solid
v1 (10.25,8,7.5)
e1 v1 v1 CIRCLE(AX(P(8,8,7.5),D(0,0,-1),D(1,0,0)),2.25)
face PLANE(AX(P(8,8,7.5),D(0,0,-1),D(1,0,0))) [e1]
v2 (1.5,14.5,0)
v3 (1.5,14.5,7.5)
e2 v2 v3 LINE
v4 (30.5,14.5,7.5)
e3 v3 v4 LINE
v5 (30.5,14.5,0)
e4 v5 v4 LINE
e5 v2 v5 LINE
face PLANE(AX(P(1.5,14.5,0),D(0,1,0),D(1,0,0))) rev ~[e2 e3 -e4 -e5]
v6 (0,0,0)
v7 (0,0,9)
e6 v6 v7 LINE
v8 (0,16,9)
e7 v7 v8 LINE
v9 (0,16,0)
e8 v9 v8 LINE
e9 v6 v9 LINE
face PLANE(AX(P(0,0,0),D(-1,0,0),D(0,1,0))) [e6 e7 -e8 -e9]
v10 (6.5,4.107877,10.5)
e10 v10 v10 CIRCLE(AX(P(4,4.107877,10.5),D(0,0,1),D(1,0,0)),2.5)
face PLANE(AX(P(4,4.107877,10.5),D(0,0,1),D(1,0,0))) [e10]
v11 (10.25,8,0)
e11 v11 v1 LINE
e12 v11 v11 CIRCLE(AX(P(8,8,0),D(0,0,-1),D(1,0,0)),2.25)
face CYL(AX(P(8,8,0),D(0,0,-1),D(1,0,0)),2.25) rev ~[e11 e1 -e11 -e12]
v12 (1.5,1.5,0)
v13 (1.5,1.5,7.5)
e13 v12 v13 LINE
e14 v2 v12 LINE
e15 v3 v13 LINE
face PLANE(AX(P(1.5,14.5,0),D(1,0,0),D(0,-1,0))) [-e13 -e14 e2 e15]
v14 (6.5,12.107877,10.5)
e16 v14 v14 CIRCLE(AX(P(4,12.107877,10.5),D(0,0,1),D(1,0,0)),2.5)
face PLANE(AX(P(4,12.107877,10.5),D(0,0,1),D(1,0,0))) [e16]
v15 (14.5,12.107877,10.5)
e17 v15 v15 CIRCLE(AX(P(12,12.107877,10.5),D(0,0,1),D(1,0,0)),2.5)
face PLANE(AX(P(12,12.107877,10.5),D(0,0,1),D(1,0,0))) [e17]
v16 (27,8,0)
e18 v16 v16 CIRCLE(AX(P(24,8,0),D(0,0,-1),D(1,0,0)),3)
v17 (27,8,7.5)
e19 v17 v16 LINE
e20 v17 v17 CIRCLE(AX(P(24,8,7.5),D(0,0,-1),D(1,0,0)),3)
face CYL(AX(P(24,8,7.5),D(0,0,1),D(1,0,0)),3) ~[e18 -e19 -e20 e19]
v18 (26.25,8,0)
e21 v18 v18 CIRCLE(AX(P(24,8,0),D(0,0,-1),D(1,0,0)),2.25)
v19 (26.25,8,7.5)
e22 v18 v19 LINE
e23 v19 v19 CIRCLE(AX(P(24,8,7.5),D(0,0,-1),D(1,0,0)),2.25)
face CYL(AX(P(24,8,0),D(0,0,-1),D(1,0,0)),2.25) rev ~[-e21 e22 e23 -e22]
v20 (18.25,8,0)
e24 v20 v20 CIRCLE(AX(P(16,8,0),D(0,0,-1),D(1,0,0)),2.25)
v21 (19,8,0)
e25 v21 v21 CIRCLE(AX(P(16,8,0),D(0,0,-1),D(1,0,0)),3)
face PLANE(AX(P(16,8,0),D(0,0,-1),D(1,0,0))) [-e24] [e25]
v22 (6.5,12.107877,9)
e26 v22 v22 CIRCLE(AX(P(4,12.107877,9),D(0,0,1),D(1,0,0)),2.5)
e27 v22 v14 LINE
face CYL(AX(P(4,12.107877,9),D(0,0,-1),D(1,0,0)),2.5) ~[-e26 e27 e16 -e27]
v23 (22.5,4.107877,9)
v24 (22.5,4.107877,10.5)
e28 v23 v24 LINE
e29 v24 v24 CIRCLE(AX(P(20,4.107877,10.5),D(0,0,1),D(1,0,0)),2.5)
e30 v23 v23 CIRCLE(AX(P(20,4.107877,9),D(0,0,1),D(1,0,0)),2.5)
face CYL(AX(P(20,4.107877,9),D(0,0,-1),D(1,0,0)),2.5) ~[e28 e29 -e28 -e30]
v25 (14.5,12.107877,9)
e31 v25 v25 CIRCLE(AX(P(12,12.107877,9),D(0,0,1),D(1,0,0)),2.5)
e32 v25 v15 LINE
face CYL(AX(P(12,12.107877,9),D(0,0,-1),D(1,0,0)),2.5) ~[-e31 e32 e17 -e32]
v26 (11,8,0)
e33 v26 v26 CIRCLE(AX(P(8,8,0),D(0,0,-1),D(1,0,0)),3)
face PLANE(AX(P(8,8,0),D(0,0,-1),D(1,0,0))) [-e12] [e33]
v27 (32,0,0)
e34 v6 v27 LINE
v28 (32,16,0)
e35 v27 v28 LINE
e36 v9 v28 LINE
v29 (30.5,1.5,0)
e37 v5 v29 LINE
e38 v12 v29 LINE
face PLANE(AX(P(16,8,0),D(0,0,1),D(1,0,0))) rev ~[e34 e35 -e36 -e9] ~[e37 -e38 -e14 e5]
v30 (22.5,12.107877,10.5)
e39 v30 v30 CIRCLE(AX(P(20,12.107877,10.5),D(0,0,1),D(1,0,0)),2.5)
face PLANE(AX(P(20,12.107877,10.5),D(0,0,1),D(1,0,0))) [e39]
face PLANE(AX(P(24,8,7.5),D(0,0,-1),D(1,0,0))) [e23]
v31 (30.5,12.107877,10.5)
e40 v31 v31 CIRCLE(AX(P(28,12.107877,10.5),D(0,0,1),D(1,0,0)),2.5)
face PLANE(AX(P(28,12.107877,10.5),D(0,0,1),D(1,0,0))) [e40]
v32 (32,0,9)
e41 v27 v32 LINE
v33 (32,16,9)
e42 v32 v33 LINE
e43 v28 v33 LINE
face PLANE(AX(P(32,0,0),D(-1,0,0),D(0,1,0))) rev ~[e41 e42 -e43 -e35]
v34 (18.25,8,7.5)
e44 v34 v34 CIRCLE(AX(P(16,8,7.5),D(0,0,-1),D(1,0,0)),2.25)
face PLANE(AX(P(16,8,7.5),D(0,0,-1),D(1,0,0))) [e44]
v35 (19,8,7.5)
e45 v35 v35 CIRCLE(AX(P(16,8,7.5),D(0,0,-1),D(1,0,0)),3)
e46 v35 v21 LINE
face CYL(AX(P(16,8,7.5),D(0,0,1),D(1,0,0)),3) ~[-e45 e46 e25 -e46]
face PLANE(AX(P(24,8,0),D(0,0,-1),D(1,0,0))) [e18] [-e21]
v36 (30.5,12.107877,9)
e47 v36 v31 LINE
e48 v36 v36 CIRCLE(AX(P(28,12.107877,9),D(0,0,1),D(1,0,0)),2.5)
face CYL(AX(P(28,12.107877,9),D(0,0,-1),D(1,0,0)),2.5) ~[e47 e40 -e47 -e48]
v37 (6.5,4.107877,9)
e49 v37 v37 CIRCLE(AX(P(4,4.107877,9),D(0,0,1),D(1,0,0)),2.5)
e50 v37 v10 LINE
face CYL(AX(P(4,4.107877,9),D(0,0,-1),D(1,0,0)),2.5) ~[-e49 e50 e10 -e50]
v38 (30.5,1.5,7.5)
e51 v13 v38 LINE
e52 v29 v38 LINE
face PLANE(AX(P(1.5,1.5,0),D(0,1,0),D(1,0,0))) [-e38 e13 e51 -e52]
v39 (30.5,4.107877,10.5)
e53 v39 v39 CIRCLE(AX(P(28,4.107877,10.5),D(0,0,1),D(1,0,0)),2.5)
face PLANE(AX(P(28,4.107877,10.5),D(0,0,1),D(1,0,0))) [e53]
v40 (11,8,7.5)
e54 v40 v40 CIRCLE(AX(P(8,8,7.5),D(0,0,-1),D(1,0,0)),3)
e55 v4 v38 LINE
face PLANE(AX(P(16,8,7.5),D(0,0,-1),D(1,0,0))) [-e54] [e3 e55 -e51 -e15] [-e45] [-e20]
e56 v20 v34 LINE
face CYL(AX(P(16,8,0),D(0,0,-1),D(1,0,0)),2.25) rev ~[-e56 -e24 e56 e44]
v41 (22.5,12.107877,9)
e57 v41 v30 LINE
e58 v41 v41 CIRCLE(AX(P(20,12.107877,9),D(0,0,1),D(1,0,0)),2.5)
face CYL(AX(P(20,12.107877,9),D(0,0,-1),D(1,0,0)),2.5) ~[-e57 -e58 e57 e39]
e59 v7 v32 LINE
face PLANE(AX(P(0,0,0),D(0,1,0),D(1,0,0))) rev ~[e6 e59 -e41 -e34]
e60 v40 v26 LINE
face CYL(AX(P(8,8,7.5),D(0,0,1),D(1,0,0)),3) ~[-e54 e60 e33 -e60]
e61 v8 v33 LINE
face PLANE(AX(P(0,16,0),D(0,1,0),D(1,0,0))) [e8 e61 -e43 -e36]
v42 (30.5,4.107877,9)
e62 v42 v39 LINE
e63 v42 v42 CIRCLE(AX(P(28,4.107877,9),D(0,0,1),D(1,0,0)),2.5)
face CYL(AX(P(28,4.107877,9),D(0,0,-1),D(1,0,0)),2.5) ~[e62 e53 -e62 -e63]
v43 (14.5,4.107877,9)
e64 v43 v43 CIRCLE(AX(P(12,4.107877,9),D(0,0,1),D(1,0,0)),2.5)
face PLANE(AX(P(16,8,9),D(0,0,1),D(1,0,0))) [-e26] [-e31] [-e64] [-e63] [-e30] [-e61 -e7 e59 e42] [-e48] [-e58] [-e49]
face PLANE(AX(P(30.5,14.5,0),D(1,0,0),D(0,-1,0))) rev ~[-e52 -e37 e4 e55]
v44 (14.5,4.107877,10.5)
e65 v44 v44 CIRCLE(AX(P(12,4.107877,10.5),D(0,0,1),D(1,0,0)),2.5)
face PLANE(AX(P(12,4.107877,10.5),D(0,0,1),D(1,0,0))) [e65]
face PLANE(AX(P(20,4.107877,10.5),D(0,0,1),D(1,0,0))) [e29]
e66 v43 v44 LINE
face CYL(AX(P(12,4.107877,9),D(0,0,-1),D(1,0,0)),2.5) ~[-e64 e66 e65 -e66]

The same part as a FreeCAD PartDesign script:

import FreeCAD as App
import Part
import Sketcher

V = App.Vector


def add_polygon(sketch, points):
    """Adds a closed chain of lines whose ends are joined by coincident constraints."""
    first, n = sketch.GeometryCount, len(points)
    for a, b in zip(points, points[1:] + points[:1]):
        sketch.addGeometry(Part.LineSegment(App.Vector(*a, 0), App.Vector(*b, 0)), False)
    for i in range(n):
        sketch.addConstraint(Sketcher.Constraint("Coincident", first + i, 2, first + (i + 1) % n, 1))

doc = App.newDocument("Part")
body = doc.addObject("PartDesign::Body", "Body")

# Sketch on XY plane
sketch1 = body.newObject("Sketcher::SketchObject", "Sketch")
sketch1.AttachmentSupport = (doc.getObject("XY_Plane"), [""])
sketch1.MapMode = "FlatFace"
add_polygon(sketch1, [(0, 16), (0, 0), (32, 0), (32, 16)])  # lines 0-3
sketch1.addConstraint(Sketcher.Constraint("Vertical", 0))
sketch1.addConstraint(Sketcher.Constraint("Horizontal", 1))
sketch1.addConstraint(Sketcher.Constraint("Vertical", 2))
sketch1.addConstraint(Sketcher.Constraint("Horizontal", 3))
sketch1.addConstraint(Sketcher.Constraint("Coincident", 0, 2, -1, 1))
sketch1.addConstraint(Sketcher.Constraint("DistanceX", 1, 1, 1, 2, 32.0))
sketch1.addConstraint(Sketcher.Constraint("DistanceY", 0, 2, 0, 1, 16.0))
pad1 = body.newObject("PartDesign::Pad", "Pad")
pad1.Profile = sketch1
pad1.Length = 9

# Sketch on XY plane
sketch2 = body.newObject("Sketcher::SketchObject", "Sketch001")
sketch2.AttachmentSupport = (doc.getObject("XY_Plane"), [""])
sketch2.MapMode = "FlatFace"
sketch2.AttachmentOffset = App.Placement(V(0, 0, 9), App.Rotation())
sketch2.addGeometry(Part.Circle(V(4, 4.107877, 0), V(0, 0, 1), 2.5), False)
sketch2.addGeometry(Part.Circle(V(4, 12.107877, 0), V(0, 0, 1), 2.5), False)
sketch2.addGeometry(Part.Circle(V(12, 12.107877, 0), V(0, 0, 1), 2.5), False)
sketch2.addGeometry(Part.Circle(V(12, 4.107877, 0), V(0, 0, 1), 2.5), False)
sketch2.addGeometry(Part.Circle(V(20, 12.107877, 0), V(0, 0, 1), 2.5), False)
sketch2.addGeometry(Part.Circle(V(20, 4.107877, 0), V(0, 0, 1), 2.5), False)
sketch2.addGeometry(Part.Circle(V(28, 4.107877, 0), V(0, 0, 1), 2.5), False)
sketch2.addGeometry(Part.Circle(V(28, 12.107877, 0), V(0, 0, 1), 2.5), False)
sketch2.addConstraint(Sketcher.Constraint("Equal", 0, 1))
sketch2.addConstraint(Sketcher.Constraint("Equal", 1, 2))
sketch2.addConstraint(Sketcher.Constraint("Equal", 2, 3))
sketch2.addConstraint(Sketcher.Constraint("Equal", 3, 4))
sketch2.addConstraint(Sketcher.Constraint("Equal", 4, 5))
sketch2.addConstraint(Sketcher.Constraint("Equal", 5, 6))
sketch2.addConstraint(Sketcher.Constraint("Equal", 6, 7))
sketch2.addConstraint(Sketcher.Constraint("Horizontal", 1, 3, 2, 3))
sketch2.addConstraint(Sketcher.Constraint("Horizontal", 0, 3, 3, 3))
sketch2.addConstraint(Sketcher.Constraint("Horizontal", 2, 3, 4, 3))
sketch2.addConstraint(Sketcher.Constraint("Horizontal", 3, 3, 5, 3))
sketch2.addConstraint(Sketcher.Constraint("Horizontal", 5, 3, 6, 3))
sketch2.addConstraint(Sketcher.Constraint("Horizontal", 4, 3, 7, 3))
sketch2.addConstraint(Sketcher.Constraint("Vertical", 0, 3, 1, 3))
sketch2.addConstraint(Sketcher.Constraint("Vertical", 2, 3, 3, 3))
sketch2.addConstraint(Sketcher.Constraint("Vertical", 4, 3, 5, 3))
sketch2.addConstraint(Sketcher.Constraint("Vertical", 6, 3, 7, 3))
sketch2.addConstraint(Sketcher.Constraint("Diameter", 0, 5.0))
sketch2.addConstraint(Sketcher.Constraint("DistanceX", -1, 1, 0, 3, 4.0))
sketch2.addConstraint(Sketcher.Constraint("DistanceX", -1, 1, 2, 3, 12.0))
sketch2.addConstraint(Sketcher.Constraint("DistanceX", -1, 1, 4, 3, 20.0))
sketch2.addConstraint(Sketcher.Constraint("DistanceX", -1, 1, 6, 3, 28.0))
sketch2.addConstraint(Sketcher.Constraint("DistanceY", 0, 3, 1, 3, 8.0))
sketch2.addConstraint(Sketcher.Constraint("DistanceY", -1, 1, 0, 3, 4.107877))
pad2 = body.newObject("PartDesign::Pad", "Pad001")
pad2.Profile = sketch2
pad2.Length = 1.5

# Sketch on XY plane
sketch3 = body.newObject("Sketcher::SketchObject", "Sketch002")
sketch3.AttachmentSupport = (doc.getObject("XY_Plane"), [""])
sketch3.MapMode = "FlatFace"
add_polygon(sketch3, [(1.5, 1.5), (1.5, 14.5), (30.5, 14.5), (30.5, 1.5)])  # lines 0-3
sketch3.addConstraint(Sketcher.Constraint("Vertical", 0))
sketch3.addConstraint(Sketcher.Constraint("Horizontal", 1))
sketch3.addConstraint(Sketcher.Constraint("Vertical", 2))
sketch3.addConstraint(Sketcher.Constraint("Horizontal", 3))
sketch3.addConstraint(Sketcher.Constraint("DistanceX", 1, 1, 1, 2, 29.0))
sketch3.addConstraint(Sketcher.Constraint("DistanceY", 0, 1, 0, 2, 13.0))
sketch3.addConstraint(Sketcher.Constraint("DistanceX", -1, 1, 0, 2, 1.5))
sketch3.addConstraint(Sketcher.Constraint("DistanceY", -1, 1, 0, 2, 14.5))
pocket1 = body.newObject("PartDesign::Pocket", "Pocket")
pocket1.Profile = sketch3
pocket1.Length = 7.5
pocket1.Reversed = True

# Sketch on XY plane
sketch4 = body.newObject("Sketcher::SketchObject", "Sketch003")
sketch4.AttachmentSupport = (doc.getObject("XY_Plane"), [""])
sketch4.MapMode = "FlatFace"
sketch4.AttachmentOffset = App.Placement(V(0, 0, 7.5), App.Rotation())
sketch4.addGeometry(Part.Circle(V(8, 8, 0), V(0, 0, 1), 3), False)
sketch4.addGeometry(Part.Circle(V(16, 8, 0), V(0, 0, 1), 3), False)
sketch4.addGeometry(Part.Circle(V(24, 8, 0), V(0, 0, 1), 3), False)
sketch4.addConstraint(Sketcher.Constraint("Equal", 0, 1))
sketch4.addConstraint(Sketcher.Constraint("Equal", 1, 2))
sketch4.addConstraint(Sketcher.Constraint("Horizontal", 0, 3, 1, 3))
sketch4.addConstraint(Sketcher.Constraint("Horizontal", 1, 3, 2, 3))
sketch4.addConstraint(Sketcher.Constraint("Diameter", 0, 6.0))
sketch4.addConstraint(Sketcher.Constraint("DistanceX", -1, 1, 0, 3, 8.0))
sketch4.addConstraint(Sketcher.Constraint("DistanceY", -1, 1, 0, 3, 8.0))
sketch4.addConstraint(Sketcher.Constraint("DistanceX", -1, 1, 1, 3, 16.0))
sketch4.addConstraint(Sketcher.Constraint("DistanceX", -1, 1, 2, 3, 24.0))
pad3 = body.newObject("PartDesign::Pad", "Pad002")
pad3.Profile = sketch4
pad3.Length = 7.5
pad3.Reversed = True

# Sketch on XY plane
sketch5 = body.newObject("Sketcher::SketchObject", "Sketch004")
sketch5.AttachmentSupport = (doc.getObject("XY_Plane"), [""])
sketch5.MapMode = "FlatFace"
sketch5.addGeometry(Part.Circle(V(8, 8, 0), V(0, 0, 1), 2.25), False)
sketch5.addGeometry(Part.Circle(V(16, 8, 0), V(0, 0, 1), 2.25), False)
sketch5.addGeometry(Part.Circle(V(24, 8, 0), V(0, 0, 1), 2.25), False)
sketch5.addConstraint(Sketcher.Constraint("Equal", 0, 1))
sketch5.addConstraint(Sketcher.Constraint("Equal", 1, 2))
sketch5.addConstraint(Sketcher.Constraint("Horizontal", 0, 3, 1, 3))
sketch5.addConstraint(Sketcher.Constraint("Horizontal", 1, 3, 2, 3))
sketch5.addConstraint(Sketcher.Constraint("Diameter", 0, 4.5))
sketch5.addConstraint(Sketcher.Constraint("DistanceX", -1, 1, 0, 3, 8.0))
sketch5.addConstraint(Sketcher.Constraint("DistanceY", -1, 1, 0, 3, 8.0))
sketch5.addConstraint(Sketcher.Constraint("DistanceX", -1, 1, 1, 3, 16.0))
sketch5.addConstraint(Sketcher.Constraint("DistanceX", -1, 1, 2, 3, 24.0))
pocket2 = body.newObject("PartDesign::Pocket", "Pocket001")
pocket2.Profile = sketch5
pocket2.Length = 7.5
pocket2.Reversed = True

doc.recompute()
